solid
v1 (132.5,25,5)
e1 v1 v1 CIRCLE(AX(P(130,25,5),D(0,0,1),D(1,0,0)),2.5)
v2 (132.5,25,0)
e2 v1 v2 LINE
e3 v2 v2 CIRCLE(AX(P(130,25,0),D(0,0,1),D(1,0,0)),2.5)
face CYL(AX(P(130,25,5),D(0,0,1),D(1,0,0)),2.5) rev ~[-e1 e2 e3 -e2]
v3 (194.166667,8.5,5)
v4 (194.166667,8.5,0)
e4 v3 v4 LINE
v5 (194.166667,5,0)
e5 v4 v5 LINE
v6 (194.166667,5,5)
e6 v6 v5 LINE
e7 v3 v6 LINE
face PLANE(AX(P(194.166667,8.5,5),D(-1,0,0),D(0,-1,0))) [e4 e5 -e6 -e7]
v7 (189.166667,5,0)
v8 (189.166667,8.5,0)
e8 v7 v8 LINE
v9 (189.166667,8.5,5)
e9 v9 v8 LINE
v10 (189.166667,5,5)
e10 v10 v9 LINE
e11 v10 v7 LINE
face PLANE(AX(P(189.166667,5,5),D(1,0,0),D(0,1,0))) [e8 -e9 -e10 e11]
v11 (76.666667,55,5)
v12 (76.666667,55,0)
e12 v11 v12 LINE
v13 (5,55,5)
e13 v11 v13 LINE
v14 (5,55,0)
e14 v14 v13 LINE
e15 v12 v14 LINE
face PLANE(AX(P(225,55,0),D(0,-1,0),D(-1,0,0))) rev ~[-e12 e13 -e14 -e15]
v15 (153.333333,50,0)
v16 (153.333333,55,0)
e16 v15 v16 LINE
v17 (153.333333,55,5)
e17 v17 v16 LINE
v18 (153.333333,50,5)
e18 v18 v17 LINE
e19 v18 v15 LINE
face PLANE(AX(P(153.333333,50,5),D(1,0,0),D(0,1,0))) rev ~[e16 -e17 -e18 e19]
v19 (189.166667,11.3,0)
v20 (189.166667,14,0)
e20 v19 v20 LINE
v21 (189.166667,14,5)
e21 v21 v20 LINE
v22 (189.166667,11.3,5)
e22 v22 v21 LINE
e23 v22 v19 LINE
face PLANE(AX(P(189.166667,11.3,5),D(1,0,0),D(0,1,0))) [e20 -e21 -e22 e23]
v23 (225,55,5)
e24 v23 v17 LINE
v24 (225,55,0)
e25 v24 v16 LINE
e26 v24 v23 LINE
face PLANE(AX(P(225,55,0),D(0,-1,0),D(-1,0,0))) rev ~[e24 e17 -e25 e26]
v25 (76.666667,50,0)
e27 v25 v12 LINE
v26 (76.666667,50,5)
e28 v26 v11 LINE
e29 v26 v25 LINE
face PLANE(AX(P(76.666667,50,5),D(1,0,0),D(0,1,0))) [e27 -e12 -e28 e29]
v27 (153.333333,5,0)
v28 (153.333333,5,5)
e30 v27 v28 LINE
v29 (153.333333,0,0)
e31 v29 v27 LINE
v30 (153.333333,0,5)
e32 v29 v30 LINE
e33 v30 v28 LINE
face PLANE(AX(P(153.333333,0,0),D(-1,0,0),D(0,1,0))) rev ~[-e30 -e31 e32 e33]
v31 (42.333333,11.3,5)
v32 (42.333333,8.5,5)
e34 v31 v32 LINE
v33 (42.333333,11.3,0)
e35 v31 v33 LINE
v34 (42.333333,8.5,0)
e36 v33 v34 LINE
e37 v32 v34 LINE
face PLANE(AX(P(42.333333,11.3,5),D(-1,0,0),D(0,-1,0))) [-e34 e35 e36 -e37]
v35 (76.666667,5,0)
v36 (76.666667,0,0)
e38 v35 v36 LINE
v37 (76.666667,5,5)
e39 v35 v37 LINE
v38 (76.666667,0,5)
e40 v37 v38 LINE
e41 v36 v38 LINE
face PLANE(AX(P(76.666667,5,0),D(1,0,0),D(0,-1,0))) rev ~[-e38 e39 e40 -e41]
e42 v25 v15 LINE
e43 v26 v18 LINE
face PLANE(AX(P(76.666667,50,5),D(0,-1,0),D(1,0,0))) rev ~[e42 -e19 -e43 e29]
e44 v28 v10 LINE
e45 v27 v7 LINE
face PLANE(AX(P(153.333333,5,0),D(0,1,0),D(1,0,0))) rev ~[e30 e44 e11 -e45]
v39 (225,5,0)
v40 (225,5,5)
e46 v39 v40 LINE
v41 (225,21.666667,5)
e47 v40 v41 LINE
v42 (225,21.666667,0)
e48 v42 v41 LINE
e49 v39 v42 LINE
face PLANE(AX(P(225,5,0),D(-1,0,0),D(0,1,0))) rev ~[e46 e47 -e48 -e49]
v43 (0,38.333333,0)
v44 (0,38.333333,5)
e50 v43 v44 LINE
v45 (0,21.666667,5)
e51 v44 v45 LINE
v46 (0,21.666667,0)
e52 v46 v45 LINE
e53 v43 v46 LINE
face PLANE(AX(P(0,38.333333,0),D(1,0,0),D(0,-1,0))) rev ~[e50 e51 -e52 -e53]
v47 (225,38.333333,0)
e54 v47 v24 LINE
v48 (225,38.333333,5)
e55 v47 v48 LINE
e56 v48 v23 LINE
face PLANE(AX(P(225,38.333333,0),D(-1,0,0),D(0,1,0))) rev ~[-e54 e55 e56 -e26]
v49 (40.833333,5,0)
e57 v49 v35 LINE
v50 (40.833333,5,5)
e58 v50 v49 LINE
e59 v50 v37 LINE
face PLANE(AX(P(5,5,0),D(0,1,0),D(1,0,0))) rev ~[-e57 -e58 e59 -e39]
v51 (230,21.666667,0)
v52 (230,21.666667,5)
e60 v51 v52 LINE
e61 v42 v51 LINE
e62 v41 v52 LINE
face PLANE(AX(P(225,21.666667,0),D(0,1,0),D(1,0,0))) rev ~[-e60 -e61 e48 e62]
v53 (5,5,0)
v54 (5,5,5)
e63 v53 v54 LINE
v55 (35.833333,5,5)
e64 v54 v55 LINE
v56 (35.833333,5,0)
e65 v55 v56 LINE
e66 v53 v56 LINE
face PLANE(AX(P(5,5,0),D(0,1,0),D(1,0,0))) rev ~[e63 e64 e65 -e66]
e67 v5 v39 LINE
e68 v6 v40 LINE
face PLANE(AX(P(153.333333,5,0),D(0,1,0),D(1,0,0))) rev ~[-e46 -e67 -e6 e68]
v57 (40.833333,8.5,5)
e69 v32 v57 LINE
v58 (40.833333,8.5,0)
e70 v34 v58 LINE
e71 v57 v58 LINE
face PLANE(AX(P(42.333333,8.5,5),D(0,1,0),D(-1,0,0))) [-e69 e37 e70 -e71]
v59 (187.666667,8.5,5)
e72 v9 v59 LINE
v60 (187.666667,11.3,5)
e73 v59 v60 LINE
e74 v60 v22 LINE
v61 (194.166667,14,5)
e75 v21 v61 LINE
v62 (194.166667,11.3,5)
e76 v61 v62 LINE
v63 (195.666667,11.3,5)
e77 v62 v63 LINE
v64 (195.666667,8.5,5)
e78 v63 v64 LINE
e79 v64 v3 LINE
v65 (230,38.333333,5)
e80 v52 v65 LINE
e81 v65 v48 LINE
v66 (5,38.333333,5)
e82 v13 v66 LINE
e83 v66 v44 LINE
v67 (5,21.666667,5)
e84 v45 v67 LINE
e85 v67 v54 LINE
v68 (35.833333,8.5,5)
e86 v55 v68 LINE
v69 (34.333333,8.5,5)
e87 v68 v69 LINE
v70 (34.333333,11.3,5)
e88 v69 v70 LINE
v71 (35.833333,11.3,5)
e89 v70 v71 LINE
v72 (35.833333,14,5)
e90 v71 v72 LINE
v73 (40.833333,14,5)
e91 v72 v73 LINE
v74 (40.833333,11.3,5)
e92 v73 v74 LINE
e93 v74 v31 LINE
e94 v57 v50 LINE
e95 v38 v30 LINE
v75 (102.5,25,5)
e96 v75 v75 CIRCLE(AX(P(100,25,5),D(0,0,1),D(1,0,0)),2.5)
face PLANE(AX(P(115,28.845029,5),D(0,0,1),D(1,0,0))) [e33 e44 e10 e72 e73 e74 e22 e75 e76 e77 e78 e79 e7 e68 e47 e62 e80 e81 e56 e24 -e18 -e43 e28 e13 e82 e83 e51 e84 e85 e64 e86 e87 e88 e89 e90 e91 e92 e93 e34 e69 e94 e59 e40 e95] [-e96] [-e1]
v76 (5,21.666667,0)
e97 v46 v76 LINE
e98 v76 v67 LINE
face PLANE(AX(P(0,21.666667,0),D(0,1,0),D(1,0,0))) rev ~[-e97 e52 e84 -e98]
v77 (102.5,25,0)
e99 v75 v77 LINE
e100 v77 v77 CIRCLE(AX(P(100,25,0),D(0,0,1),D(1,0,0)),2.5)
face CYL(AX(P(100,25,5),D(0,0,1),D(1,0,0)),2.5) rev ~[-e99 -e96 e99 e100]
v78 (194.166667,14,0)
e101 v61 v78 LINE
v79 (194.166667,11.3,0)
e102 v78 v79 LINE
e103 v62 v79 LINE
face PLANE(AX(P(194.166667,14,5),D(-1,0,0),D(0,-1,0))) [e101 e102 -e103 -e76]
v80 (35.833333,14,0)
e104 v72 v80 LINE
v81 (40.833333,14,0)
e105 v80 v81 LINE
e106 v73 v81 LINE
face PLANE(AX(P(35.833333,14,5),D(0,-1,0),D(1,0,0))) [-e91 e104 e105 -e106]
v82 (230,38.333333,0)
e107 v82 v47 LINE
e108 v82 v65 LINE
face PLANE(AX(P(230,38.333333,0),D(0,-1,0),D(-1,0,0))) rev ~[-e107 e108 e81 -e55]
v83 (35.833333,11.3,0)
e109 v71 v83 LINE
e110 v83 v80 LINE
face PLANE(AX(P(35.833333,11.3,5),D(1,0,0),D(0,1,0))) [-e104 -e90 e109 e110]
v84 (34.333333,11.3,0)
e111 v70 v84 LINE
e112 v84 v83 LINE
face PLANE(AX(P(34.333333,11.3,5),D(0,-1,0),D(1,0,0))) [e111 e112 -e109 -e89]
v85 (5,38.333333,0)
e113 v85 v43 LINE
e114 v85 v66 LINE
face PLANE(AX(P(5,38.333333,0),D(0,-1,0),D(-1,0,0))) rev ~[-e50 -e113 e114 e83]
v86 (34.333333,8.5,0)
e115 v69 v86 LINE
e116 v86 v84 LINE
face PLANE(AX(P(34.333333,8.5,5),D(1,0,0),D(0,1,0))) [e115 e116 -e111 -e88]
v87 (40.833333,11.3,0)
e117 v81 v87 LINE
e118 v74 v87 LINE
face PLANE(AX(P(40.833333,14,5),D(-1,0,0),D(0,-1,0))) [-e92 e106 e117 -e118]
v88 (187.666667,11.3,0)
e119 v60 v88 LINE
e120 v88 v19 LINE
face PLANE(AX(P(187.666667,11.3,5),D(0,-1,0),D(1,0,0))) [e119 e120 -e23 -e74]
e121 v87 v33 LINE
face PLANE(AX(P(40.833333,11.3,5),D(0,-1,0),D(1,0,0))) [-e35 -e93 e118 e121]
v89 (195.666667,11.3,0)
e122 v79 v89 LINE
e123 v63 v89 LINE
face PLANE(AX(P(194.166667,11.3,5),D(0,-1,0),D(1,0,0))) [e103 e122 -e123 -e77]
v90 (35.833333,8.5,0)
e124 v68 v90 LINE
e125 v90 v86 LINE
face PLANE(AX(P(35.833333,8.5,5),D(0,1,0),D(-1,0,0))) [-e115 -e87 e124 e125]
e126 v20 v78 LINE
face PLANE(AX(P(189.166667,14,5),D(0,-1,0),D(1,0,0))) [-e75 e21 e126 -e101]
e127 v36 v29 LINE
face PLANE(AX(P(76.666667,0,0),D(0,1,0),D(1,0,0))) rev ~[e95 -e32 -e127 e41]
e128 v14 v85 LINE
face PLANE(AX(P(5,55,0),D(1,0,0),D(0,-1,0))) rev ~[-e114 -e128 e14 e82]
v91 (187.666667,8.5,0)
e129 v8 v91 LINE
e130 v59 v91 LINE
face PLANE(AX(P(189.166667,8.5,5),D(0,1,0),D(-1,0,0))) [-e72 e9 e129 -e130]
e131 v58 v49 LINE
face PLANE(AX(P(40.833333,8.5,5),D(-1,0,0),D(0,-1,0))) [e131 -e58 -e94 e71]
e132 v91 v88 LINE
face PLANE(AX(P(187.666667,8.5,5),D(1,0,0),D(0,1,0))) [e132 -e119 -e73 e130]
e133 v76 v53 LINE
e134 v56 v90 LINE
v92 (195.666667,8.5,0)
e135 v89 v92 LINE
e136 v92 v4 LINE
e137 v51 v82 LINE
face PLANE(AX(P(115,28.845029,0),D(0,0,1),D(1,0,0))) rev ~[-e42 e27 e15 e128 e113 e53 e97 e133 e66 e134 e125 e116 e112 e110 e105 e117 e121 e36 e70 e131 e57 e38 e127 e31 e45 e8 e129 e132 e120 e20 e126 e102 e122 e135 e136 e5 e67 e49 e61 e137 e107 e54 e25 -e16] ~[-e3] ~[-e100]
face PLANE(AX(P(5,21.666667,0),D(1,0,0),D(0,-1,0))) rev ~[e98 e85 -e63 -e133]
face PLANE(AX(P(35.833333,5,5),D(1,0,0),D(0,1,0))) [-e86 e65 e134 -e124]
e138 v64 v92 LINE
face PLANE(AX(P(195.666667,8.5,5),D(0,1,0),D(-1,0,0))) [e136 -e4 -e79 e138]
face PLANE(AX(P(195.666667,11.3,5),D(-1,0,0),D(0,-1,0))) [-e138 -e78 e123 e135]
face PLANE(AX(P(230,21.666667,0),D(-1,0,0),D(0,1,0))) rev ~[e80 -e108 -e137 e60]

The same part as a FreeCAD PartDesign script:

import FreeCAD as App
import Part
import Sketcher


def add_polygon(sketch, points):
    """Adds a closed chain of lines whose ends are joined by coincident constraints."""
    first, n = sketch.GeometryCount, len(points)
    for a, b in zip(points, points[1:] + points[:1]):
        sketch.addGeometry(Part.LineSegment(App.Vector(*a, 0), App.Vector(*b, 0)), False)
    for i in range(n):
        sketch.addConstraint(Sketcher.Constraint("Coincident", first + i, 2, first + (i + 1) % n, 1))

doc = App.newDocument("Part")
params = doc.addObject("Spreadsheet::Sheet", "Params")
for row, (alias, value) in enumerate([
    ("sketch1_width", "5 mm"),
    ("sketch1_width2", "220 mm"),
    ("pad1_length", "5 mm"),
    ("sketch2_width", "5 mm"),
    ("sketch2_width2", "1.5 mm"),
    ("sketch2_height", "3.5 mm"),
    ("sketch2_height2", "2.8 mm"),
    ("sketch2_height3", "2.7 mm"),
    ("pocket1_length", "5 mm"),
    ("sketch3_height", "5 mm"),
    ("pocket2_length", "10 mm"),
    ("sketch4_diameter", "5 mm"),
    ("pocket3_length", "10 mm"),
], start=1):
    params.set(f"A{row}", alias)
    params.set(f"B{row}", "=" + value)
    params.setAlias(f"B{row}", alias)

body = doc.addObject("PartDesign::Body", "Body")

sketch1 = body.newObject("Sketcher::SketchObject", "Sketch")
sketch1.AttachmentSupport = (doc.getObject("XY_Plane"), [""])
sketch1.MapMode = "FlatFace"
add_polygon(sketch1, [(77, 5), (77, 0), (153, 0), (153, 5), (225, 5), (225, 22), (230, 22), (230, 38), (225, 38), (225, 55), (5, 55), (5, 38), (0, 38), (0, 22), (5, 22), (5, 5)])
sketch1.addConstraint(Sketcher.Constraint("Vertical", 0))
sketch1.addConstraint(Sketcher.Constraint("Horizontal", 1))
sketch1.addConstraint(Sketcher.Constraint("Vertical", 2))
sketch1.addConstraint(Sketcher.Constraint("Horizontal", 3))
sketch1.addConstraint(Sketcher.Constraint("Vertical", 4))
sketch1.addConstraint(Sketcher.Constraint("Horizontal", 5))
sketch1.addConstraint(Sketcher.Constraint("Vertical", 6))
sketch1.addConstraint(Sketcher.Constraint("Horizontal", 7))
sketch1.addConstraint(Sketcher.Constraint("Vertical", 8))
sketch1.addConstraint(Sketcher.Constraint("Horizontal", 9))
sketch1.addConstraint(Sketcher.Constraint("Vertical", 10))
sketch1.addConstraint(Sketcher.Constraint("Horizontal", 11))
sketch1.addConstraint(Sketcher.Constraint("Vertical", 12))
sketch1.addConstraint(Sketcher.Constraint("Horizontal", 13))
sketch1.addConstraint(Sketcher.Constraint("Vertical", 14))
sketch1.addConstraint(Sketcher.Constraint("Horizontal", 15))
sketch1.addConstraint(Sketcher.Constraint("PointOnObject", 0, 2, -1))
sketch1.addConstraint(Sketcher.Constraint("PointOnObject", 11, 2, -2))
sketch1.addConstraint(Sketcher.Constraint("Horizontal", 7, 2, 10, 2))
sketch1.addConstraint(Sketcher.Constraint("Horizontal", 5, 2, 12, 2))
sketch1.addConstraint(Sketcher.Constraint("Horizontal", 3, 2, 14, 2))
sketch1.addConstraint(Sketcher.Constraint("Vertical", 4, 2, 7, 2))
sketch1.addConstraint(Sketcher.Constraint("Vertical", 10, 2, 13, 2))
sketch1.addConstraint(Sketcher.Constraint("Equal", 7, 11))
sketch1.addConstraint(Sketcher.Constraint("Equal", 3, 15))
sketch1.addConstraint(Sketcher.Constraint("Equal", 13, 0))
sketch1.addConstraint(Sketcher.Constraint("Equal", 4, 6))
sketch1.addConstraint(Sketcher.Constraint("Equal", 6, 8))
sketch1.addConstraint(Sketcher.Constraint("DistanceX", 5, 1, 5, 2, 5.0))
sketch1.addConstraint(Sketcher.Constraint("DistanceX", 9, 2, 9, 1, 220.0))
sketch1.addConstraint(Sketcher.Constraint("DistanceY", -1, 1, 8, 2, 55.0))
sketch1.addConstraint(Sketcher.Constraint("DistanceX", 1, 1, 1, 2, 76.666667))
sketch1.setExpression("Constraints[44]", "Params.sketch1_width")
sketch1.setExpression("Constraints[45]", "Params.sketch1_width2")
pad1 = body.newObject("PartDesign::Pad", "Pad")
pad1.Profile = sketch1
pad1.setExpression("Length", "Params.pad1_length")

sketch2 = body.newObject("Sketcher::SketchObject", "Sketch001")
sketch2.AttachmentSupport = (doc.getObject("XY_Plane"), [""])
sketch2.MapMode = "FlatFace"
sketch2.AttachmentOffset = App.Placement(App.Vector(0, 0, 5), App.Rotation())
add_polygon(sketch2, [(35.8, 8.5), (35.8, 5), (40.8, 5), (40.8, 8.5), (42.3, 8.5), (42.3, 11.3), (40.8, 11.3), (40.8, 14), (35.8, 14), (35.8, 11.3), (34.3, 11.3), (34.3, 8.5)])
add_polygon(sketch2, [(189.2, 8.5), (189.2, 5), (194.2, 5), (194.2, 8.5), (195.7, 8.5), (195.7, 11.3), (194.2, 11.3), (194.2, 14), (189.2, 14), (189.2, 11.3), (187.7, 11.3), (187.7, 8.5)])
sketch2.addConstraint(Sketcher.Constraint("Vertical", 0))
sketch2.addConstraint(Sketcher.Constraint("Horizontal", 1))
sketch2.addConstraint(Sketcher.Constraint("Vertical", 2))
sketch2.addConstraint(Sketcher.Constraint("Horizontal", 3))
sketch2.addConstraint(Sketcher.Constraint("Vertical", 4))
sketch2.addConstraint(Sketcher.Constraint("Horizontal", 5))
sketch2.addConstraint(Sketcher.Constraint("Vertical", 6))
sketch2.addConstraint(Sketcher.Constraint("Horizontal", 7))
sketch2.addConstraint(Sketcher.Constraint("Vertical", 8))
sketch2.addConstraint(Sketcher.Constraint("Horizontal", 9))
sketch2.addConstraint(Sketcher.Constraint("Vertical", 10))
sketch2.addConstraint(Sketcher.Constraint("Horizontal", 11))
sketch2.addConstraint(Sketcher.Constraint("Vertical", 12))
sketch2.addConstraint(Sketcher.Constraint("Horizontal", 13))
sketch2.addConstraint(Sketcher.Constraint("Vertical", 14))
sketch2.addConstraint(Sketcher.Constraint("Horizontal", 15))
sketch2.addConstraint(Sketcher.Constraint("Vertical", 16))
sketch2.addConstraint(Sketcher.Constraint("Horizontal", 17))
sketch2.addConstraint(Sketcher.Constraint("Vertical", 18))
sketch2.addConstraint(Sketcher.Constraint("Horizontal", 19))
sketch2.addConstraint(Sketcher.Constraint("Vertical", 20))
sketch2.addConstraint(Sketcher.Constraint("Horizontal", 21))
sketch2.addConstraint(Sketcher.Constraint("Vertical", 22))
sketch2.addConstraint(Sketcher.Constraint("Horizontal", 23))
sketch2.addConstraint(Sketcher.Constraint("Horizontal", 5, 2, 8, 2))
sketch2.addConstraint(Sketcher.Constraint("Horizontal", 3, 2, 10, 2))
sketch2.addConstraint(Sketcher.Constraint("Horizontal", 1, 2, 12, 2))
sketch2.addConstraint(Sketcher.Constraint("Horizontal", 11, 2, 14, 2))
sketch2.addConstraint(Sketcher.Constraint("Horizontal", 9, 2, 16, 2))
sketch2.addConstraint(Sketcher.Constraint("Horizontal", 7, 2, 18, 2))
sketch2.addConstraint(Sketcher.Constraint("Horizontal", 17, 2, 20, 2))
sketch2.addConstraint(Sketcher.Constraint("Horizontal", 15, 2, 22, 2))
sketch2.addConstraint(Sketcher.Constraint("Vertical", 2, 2, 5, 2))
sketch2.addConstraint(Sketcher.Constraint("Vertical", 0, 2, 7, 2))
sketch2.addConstraint(Sketcher.Constraint("Vertical", 14, 2, 17, 2))
sketch2.addConstraint(Sketcher.Constraint("Vertical", 12, 2, 19, 2))
sketch2.addConstraint(Sketcher.Constraint("Equal", 5, 9))
sketch2.addConstraint(Sketcher.Constraint("Equal", 7, 13))
sketch2.addConstraint(Sketcher.Constraint("Equal", 11, 15))
sketch2.addConstraint(Sketcher.Constraint("Equal", 17, 21))
sketch2.addConstraint(Sketcher.Constraint("DistanceX", 1, 1, 1, 2, 5.0))
sketch2.addConstraint(Sketcher.Constraint("DistanceX", 3, 1, 3, 2, 1.5))
sketch2.addConstraint(Sketcher.Constraint("DistanceY", 0, 2, 0, 1, 3.5))
sketch2.addConstraint(Sketcher.Constraint("DistanceY", 4, 1, 4, 2, 2.8))
sketch2.addConstraint(Sketcher.Constraint("DistanceY", 6, 1, 6, 2, 2.7))
sketch2.addConstraint(Sketcher.Constraint("DistanceY", -1, 1, 0, 2, 5.0))
sketch2.addConstraint(Sketcher.Constraint("DistanceX", -1, 1, 0, 2, 35.833333))
sketch2.addConstraint(Sketcher.Constraint("DistanceX", -1, 1, 12, 2, 189.166667))
sketch2.setExpression("Constraints[64]", "Params.sketch2_width")
sketch2.setExpression("Constraints[65]", "Params.sketch2_width2")
sketch2.setExpression("Constraints[66]", "Params.sketch2_height")
sketch2.setExpression("Constraints[67]", "Params.sketch2_height2")
sketch2.setExpression("Constraints[68]", "Params.sketch2_height3")
pocket1 = body.newObject("PartDesign::Pocket", "Pocket")
pocket1.Profile = sketch2
pocket1.setExpression("Length", "Params.pocket1_length")

sketch3 = body.newObject("Sketcher::SketchObject", "Sketch002")
sketch3.AttachmentSupport = (doc.getObject("XY_Plane"), [""])
sketch3.MapMode = "FlatFace"
sketch3.AttachmentOffset = App.Placement(App.Vector(0, 0, 5), App.Rotation())
add_polygon(sketch3, [(77, 55), (77, 50), (153, 50), (153, 55)])
sketch3.addConstraint(Sketcher.Constraint("Vertical", 0))
sketch3.addConstraint(Sketcher.Constraint("Horizontal", 1))
sketch3.addConstraint(Sketcher.Constraint("Vertical", 2))
sketch3.addConstraint(Sketcher.Constraint("Horizontal", 3))
sketch3.addConstraint(Sketcher.Constraint("DistanceY", 0, 2, 0, 1, 5.0))
sketch3.addConstraint(Sketcher.Constraint("DistanceY", -1, 1, 0, 2, 50.0))
sketch3.addConstraint(Sketcher.Constraint("DistanceX", 1, 1, 1, 2, 76.666667))
sketch3.addConstraint(Sketcher.Constraint("DistanceX", -1, 1, 0, 2, 76.666667))
sketch3.setExpression("Constraints[8]", "Params.sketch3_height")
pocket2 = body.newObject("PartDesign::Pocket", "Pocket001")
pocket2.Profile = sketch3
pocket2.setExpression("Length", "Params.pocket2_length")

sketch4 = body.newObject("Sketcher::SketchObject", "Sketch003")
sketch4.AttachmentSupport = (doc.getObject("XY_Plane"), [""])
sketch4.MapMode = "FlatFace"
sketch4.AttachmentOffset = App.Placement(App.Vector(0, 0, 5), App.Rotation())
sketch4.addGeometry(Part.Circle(App.Vector(100, 25, 0), App.Vector(0, 0, 1), 2.5), False)
sketch4.addGeometry(Part.Circle(App.Vector(130, 25, 0), App.Vector(0, 0, 1), 2.5), False)
sketch4.addConstraint(Sketcher.Constraint("Equal", 0, 1))
sketch4.addConstraint(Sketcher.Constraint("Horizontal", 0, 3, 1, 3))
sketch4.addConstraint(Sketcher.Constraint("Diameter", 0, 5.0))
sketch4.addConstraint(Sketcher.Constraint("DistanceX", -1, 1, 0, 3, 100.0))
sketch4.addConstraint(Sketcher.Constraint("DistanceY", -1, 1, 0, 3, 25.0))
sketch4.addConstraint(Sketcher.Constraint("DistanceX", -1, 1, 1, 3, 130.0))
sketch4.setExpression("Constraints[2]", "Params.sketch4_diameter")
pocket3 = body.newObject("PartDesign::Pocket", "Pocket002")
pocket3.Profile = sketch4
pocket3.setExpression("Length", "Params.pocket3_length")

doc.recompute()
